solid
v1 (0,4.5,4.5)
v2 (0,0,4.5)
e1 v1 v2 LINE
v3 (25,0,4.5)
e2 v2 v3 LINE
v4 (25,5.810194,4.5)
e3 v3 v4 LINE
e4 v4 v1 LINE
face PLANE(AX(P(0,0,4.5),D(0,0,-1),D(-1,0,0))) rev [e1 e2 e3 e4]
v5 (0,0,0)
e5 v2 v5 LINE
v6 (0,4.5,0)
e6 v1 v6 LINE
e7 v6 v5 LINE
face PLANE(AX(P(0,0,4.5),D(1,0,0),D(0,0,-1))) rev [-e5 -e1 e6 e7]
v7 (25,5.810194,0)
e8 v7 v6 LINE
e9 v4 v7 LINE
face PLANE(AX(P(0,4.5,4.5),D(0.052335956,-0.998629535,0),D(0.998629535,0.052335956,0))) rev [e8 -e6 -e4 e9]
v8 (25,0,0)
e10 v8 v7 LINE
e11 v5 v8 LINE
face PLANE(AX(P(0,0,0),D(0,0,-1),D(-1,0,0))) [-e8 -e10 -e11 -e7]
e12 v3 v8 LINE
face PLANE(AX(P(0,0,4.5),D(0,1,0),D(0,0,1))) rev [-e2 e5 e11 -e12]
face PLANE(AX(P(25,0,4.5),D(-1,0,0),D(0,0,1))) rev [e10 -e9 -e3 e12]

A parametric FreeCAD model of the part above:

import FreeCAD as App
import Part
import Sketcher

V = App.Vector
Q = App.Units.Quantity


def add_polygon(sketch, points):
    """Adds a closed chain of lines whose ends are joined by coincident constraints."""
    first, n = sketch.GeometryCount, len(points)
    for a, b in zip(points, points[1:] + points[:1]):
        sketch.addGeometry(Part.LineSegment(App.Vector(*a, 0), App.Vector(*b, 0)), False)
    for i in range(n):
        sketch.addConstraint(Sketcher.Constraint("Coincident", first + i, 2, first + (i + 1) % n, 1))

doc = App.newDocument("Part")
body = doc.addObject("PartDesign::Body", "Body")

sketch1 = body.newObject("Sketcher::SketchObject", "Sketch")
sketch1.AttachmentSupport = (doc.getObject("XY_Plane"), [""])
sketch1.MapMode = "FlatFace"
add_polygon(sketch1, [(0, 0), (25, 0), (25, 5.810194), (0, 4.5)])
sketch1.addConstraint(Sketcher.Constraint("Horizontal", 0))
sketch1.addConstraint(Sketcher.Constraint("Vertical", 1))
sketch1.addConstraint(Sketcher.Constraint("Vertical", 3))
sketch1.addConstraint(Sketcher.Constraint("Coincident", 3, 2, -1, 1))
sketch1.addConstraint(Sketcher.Constraint("DistanceX", 0, 1, 0, 2, Q("25 mm")))
sketch1.addConstraint(Sketcher.Constraint("Angle", 2, Q("-177 deg")))
sketch1.addConstraint(Sketcher.Constraint("DistanceY", 3, 2, 3, 1, Q("4.5 mm")))
pad1 = body.newObject("PartDesign::Pad", "Pad")
pad1.Profile = sketch1
pad1.Length = 4.5

doc.recompute()
